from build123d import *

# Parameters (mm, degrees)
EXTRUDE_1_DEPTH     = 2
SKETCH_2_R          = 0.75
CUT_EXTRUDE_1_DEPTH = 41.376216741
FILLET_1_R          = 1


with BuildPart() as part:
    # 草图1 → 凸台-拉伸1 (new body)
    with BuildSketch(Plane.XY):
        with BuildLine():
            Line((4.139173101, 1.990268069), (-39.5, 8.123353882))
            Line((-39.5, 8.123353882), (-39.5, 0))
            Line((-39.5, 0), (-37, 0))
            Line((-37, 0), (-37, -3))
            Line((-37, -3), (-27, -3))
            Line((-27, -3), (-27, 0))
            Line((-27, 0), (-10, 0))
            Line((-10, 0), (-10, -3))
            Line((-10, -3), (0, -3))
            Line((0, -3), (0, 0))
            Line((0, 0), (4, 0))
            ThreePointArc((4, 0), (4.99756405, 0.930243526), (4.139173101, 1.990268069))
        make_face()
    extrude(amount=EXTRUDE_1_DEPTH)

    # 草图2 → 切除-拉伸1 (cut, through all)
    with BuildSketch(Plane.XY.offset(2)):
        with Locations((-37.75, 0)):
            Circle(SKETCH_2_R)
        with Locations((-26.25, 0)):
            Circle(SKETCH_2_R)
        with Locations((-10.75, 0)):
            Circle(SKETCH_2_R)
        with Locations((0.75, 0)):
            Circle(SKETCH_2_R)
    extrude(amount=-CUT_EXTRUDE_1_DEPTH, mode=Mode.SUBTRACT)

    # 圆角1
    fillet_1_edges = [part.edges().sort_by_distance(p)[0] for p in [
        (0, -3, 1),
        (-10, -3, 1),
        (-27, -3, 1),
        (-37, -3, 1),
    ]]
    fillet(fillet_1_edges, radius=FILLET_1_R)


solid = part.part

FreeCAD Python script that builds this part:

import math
import FreeCAD as App
import Part
import Sketcher
Q = App.Units.Quantity


def edges_at(feature, points):
    """Names of the edges that pass closest to the given points."""
    edges = feature.Shape.Edges
    near = lambda p: min(range(len(edges)), key=lambda i: edges[i].distToShape(Part.Vertex(*p))[0])
    return sorted({f"Edge{near(p) + 1}" for p in points})

doc = App.newDocument("Part")
body = doc.addObject("PartDesign::Body", "Body")

sketch1 = body.newObject("Sketcher::SketchObject", "Sketch")
sketch1.AttachmentSupport = (doc.getObject("XY_Plane"), [""])
sketch1.MapMode = "FlatFace"
sketch1.addGeometry([
    Part.LineSegment(App.Vector(4.139173, 1.990268, 0), App.Vector(-39.5, 8.123354, 0)),
    Part.LineSegment(App.Vector(-39.5, 8.123354, 0), App.Vector(-39.5, 0, 0)),
    Part.LineSegment(App.Vector(-39.5, 0, 0), App.Vector(-37, 0, 0)),
    Part.LineSegment(App.Vector(-37, 0, 0), App.Vector(-37, -3, 0)),
    Part.LineSegment(App.Vector(-37, -3, 0), App.Vector(-27, -3, 0)),
    Part.LineSegment(App.Vector(-27, -3, 0), App.Vector(-27, 0, 0)),
    Part.LineSegment(App.Vector(-27, 0, 0), App.Vector(-10, 0, 0)),
    Part.LineSegment(App.Vector(-10, 0, 0), App.Vector(-10, -3, 0)),
    Part.LineSegment(App.Vector(-10, -3, 0), App.Vector(0, -3, 0)),
    Part.LineSegment(App.Vector(0, -3, 0), App.Vector(0, 0, 0)),
    Part.LineSegment(App.Vector(0, 0, 0), App.Vector(4, 0, 0)),
    Part.ArcOfCircle(Part.Circle(App.Vector(4, 1, 0), App.Vector(0, 0, 1), 1), math.radians(-90), math.radians(82)),
], False)
sketch1.addConstraint([
    Sketcher.Constraint("Coincident", 0, 2, 1, 1),
    Sketcher.Constraint("Coincident", 1, 2, 2, 1),
    Sketcher.Constraint("Coincident", 2, 2, 3, 1),
    Sketcher.Constraint("Coincident", 3, 2, 4, 1),
    Sketcher.Constraint("Coincident", 4, 2, 5, 1),
    Sketcher.Constraint("Coincident", 5, 2, 6, 1),
    Sketcher.Constraint("Coincident", 6, 2, 7, 1),
    Sketcher.Constraint("Coincident", 7, 2, 8, 1),
    Sketcher.Constraint("Coincident", 8, 2, 9, 1),
    Sketcher.Constraint("Coincident", 9, 2, 10, 1),
    Sketcher.Constraint("Tangent", 10, 2, 11, 1),
    Sketcher.Constraint("Tangent", 11, 2, 0, 1),
    Sketcher.Constraint("Vertical", 1),
    Sketcher.Constraint("Horizontal", 2),
    Sketcher.Constraint("Vertical", 3),
    Sketcher.Constraint("Horizontal", 4),
    Sketcher.Constraint("Vertical", 5),
    Sketcher.Constraint("Horizontal", 6),
    Sketcher.Constraint("Vertical", 7),
    Sketcher.Constraint("Horizontal", 8),
    Sketcher.Constraint("Vertical", 9),
    Sketcher.Constraint("Horizontal", 10),
    Sketcher.Constraint("Coincident", 9, 2, -1, 1),
    Sketcher.Constraint("PointOnObject", 1, 2, -1),
    Sketcher.Constraint("PointOnObject", 5, 2, -1),
    Sketcher.Constraint("Horizontal", 4, 2, 7, 2),
    Sketcher.Constraint("Equal", 4, 8),
    Sketcher.Constraint("Radius", 11, Q("1 mm")),
    Sketcher.Constraint("DistanceX", 4, 1, 4, 2, Q("10 mm")),
    Sketcher.Constraint("DistanceX", 6, 1, 6, 2, Q("17 mm")),
    Sketcher.Constraint("DistanceX", 10, 1, 10, 2, Q("4 mm")),
    Sketcher.Constraint("DistanceY", 3, 2, 3, 1, Q("3 mm")),
    Sketcher.Constraint("Angle", 0, Q("172 deg")),
    Sketcher.Constraint("DistanceX", 2, 1, 2, 2, Q("2.5 mm")),
])
pad1 = body.newObject("PartDesign::Pad", "Pad")
pad1.Profile = sketch1
pad1.Length = 2

sketch2 = body.newObject("Sketcher::SketchObject", "Sketch001")
sketch2.AttachmentSupport = (doc.getObject("XY_Plane"), [""])
sketch2.MapMode = "FlatFace"
sketch2.AttachmentOffset = App.Placement(App.Vector(0, 0, 2), App.Rotation())
sketch2.addGeometry([
    Part.Circle(App.Vector(-37.75, 0, 0), App.Vector(0, 0, 1), 0.75),
    Part.Circle(App.Vector(-26.25, 0, 0), App.Vector(0, 0, 1), 0.75),
    Part.Circle(App.Vector(-10.75, 0, 0), App.Vector(0, 0, 1), 0.75),
    Part.Circle(App.Vector(0.75, 0, 0), App.Vector(0, 0, 1), 0.75),
], False)
sketch2.addConstraint([
    Sketcher.Constraint("Equal", 0, 1),
    Sketcher.Constraint("Equal", 1, 2),
    Sketcher.Constraint("Equal", 2, 3),
    Sketcher.Constraint("PointOnObject", 0, 3, -1),
    Sketcher.Constraint("PointOnObject", 1, 3, -1),
    Sketcher.Constraint("PointOnObject", 2, 3, -1),
    Sketcher.Constraint("PointOnObject", 3, 3, -1),
    Sketcher.Constraint("Diameter", 0, Q("1.5 mm")),
    Sketcher.Constraint("DistanceX", 0, 3, 2, 3, Q("27 mm")),
    Sketcher.Constraint("DistanceX", 1, 3, 3, 3, Q("27 mm")),
    Sketcher.Constraint("DistanceX", 0, 3, 1, 3, Q("11.5 mm")),
    Sketcher.Constraint("DistanceX", 0, 3, -1, 1, Q("37.75 mm")),
])
pocket1 = body.newObject("PartDesign::Pocket", "Pocket")
pocket1.Profile = sketch2
pocket1.Type = "ThroughAll"
doc.recompute()

fillet = body.newObject("PartDesign::Fillet", "Fillet")
fillet.Base = (pocket1, edges_at(pocket1, [
    (0, -3, 1),
    (-10, -3, 1),
    (-27, -3, 1),
    (-37, -3, 1),
]))
fillet.Radius = 1

doc.recompute()
